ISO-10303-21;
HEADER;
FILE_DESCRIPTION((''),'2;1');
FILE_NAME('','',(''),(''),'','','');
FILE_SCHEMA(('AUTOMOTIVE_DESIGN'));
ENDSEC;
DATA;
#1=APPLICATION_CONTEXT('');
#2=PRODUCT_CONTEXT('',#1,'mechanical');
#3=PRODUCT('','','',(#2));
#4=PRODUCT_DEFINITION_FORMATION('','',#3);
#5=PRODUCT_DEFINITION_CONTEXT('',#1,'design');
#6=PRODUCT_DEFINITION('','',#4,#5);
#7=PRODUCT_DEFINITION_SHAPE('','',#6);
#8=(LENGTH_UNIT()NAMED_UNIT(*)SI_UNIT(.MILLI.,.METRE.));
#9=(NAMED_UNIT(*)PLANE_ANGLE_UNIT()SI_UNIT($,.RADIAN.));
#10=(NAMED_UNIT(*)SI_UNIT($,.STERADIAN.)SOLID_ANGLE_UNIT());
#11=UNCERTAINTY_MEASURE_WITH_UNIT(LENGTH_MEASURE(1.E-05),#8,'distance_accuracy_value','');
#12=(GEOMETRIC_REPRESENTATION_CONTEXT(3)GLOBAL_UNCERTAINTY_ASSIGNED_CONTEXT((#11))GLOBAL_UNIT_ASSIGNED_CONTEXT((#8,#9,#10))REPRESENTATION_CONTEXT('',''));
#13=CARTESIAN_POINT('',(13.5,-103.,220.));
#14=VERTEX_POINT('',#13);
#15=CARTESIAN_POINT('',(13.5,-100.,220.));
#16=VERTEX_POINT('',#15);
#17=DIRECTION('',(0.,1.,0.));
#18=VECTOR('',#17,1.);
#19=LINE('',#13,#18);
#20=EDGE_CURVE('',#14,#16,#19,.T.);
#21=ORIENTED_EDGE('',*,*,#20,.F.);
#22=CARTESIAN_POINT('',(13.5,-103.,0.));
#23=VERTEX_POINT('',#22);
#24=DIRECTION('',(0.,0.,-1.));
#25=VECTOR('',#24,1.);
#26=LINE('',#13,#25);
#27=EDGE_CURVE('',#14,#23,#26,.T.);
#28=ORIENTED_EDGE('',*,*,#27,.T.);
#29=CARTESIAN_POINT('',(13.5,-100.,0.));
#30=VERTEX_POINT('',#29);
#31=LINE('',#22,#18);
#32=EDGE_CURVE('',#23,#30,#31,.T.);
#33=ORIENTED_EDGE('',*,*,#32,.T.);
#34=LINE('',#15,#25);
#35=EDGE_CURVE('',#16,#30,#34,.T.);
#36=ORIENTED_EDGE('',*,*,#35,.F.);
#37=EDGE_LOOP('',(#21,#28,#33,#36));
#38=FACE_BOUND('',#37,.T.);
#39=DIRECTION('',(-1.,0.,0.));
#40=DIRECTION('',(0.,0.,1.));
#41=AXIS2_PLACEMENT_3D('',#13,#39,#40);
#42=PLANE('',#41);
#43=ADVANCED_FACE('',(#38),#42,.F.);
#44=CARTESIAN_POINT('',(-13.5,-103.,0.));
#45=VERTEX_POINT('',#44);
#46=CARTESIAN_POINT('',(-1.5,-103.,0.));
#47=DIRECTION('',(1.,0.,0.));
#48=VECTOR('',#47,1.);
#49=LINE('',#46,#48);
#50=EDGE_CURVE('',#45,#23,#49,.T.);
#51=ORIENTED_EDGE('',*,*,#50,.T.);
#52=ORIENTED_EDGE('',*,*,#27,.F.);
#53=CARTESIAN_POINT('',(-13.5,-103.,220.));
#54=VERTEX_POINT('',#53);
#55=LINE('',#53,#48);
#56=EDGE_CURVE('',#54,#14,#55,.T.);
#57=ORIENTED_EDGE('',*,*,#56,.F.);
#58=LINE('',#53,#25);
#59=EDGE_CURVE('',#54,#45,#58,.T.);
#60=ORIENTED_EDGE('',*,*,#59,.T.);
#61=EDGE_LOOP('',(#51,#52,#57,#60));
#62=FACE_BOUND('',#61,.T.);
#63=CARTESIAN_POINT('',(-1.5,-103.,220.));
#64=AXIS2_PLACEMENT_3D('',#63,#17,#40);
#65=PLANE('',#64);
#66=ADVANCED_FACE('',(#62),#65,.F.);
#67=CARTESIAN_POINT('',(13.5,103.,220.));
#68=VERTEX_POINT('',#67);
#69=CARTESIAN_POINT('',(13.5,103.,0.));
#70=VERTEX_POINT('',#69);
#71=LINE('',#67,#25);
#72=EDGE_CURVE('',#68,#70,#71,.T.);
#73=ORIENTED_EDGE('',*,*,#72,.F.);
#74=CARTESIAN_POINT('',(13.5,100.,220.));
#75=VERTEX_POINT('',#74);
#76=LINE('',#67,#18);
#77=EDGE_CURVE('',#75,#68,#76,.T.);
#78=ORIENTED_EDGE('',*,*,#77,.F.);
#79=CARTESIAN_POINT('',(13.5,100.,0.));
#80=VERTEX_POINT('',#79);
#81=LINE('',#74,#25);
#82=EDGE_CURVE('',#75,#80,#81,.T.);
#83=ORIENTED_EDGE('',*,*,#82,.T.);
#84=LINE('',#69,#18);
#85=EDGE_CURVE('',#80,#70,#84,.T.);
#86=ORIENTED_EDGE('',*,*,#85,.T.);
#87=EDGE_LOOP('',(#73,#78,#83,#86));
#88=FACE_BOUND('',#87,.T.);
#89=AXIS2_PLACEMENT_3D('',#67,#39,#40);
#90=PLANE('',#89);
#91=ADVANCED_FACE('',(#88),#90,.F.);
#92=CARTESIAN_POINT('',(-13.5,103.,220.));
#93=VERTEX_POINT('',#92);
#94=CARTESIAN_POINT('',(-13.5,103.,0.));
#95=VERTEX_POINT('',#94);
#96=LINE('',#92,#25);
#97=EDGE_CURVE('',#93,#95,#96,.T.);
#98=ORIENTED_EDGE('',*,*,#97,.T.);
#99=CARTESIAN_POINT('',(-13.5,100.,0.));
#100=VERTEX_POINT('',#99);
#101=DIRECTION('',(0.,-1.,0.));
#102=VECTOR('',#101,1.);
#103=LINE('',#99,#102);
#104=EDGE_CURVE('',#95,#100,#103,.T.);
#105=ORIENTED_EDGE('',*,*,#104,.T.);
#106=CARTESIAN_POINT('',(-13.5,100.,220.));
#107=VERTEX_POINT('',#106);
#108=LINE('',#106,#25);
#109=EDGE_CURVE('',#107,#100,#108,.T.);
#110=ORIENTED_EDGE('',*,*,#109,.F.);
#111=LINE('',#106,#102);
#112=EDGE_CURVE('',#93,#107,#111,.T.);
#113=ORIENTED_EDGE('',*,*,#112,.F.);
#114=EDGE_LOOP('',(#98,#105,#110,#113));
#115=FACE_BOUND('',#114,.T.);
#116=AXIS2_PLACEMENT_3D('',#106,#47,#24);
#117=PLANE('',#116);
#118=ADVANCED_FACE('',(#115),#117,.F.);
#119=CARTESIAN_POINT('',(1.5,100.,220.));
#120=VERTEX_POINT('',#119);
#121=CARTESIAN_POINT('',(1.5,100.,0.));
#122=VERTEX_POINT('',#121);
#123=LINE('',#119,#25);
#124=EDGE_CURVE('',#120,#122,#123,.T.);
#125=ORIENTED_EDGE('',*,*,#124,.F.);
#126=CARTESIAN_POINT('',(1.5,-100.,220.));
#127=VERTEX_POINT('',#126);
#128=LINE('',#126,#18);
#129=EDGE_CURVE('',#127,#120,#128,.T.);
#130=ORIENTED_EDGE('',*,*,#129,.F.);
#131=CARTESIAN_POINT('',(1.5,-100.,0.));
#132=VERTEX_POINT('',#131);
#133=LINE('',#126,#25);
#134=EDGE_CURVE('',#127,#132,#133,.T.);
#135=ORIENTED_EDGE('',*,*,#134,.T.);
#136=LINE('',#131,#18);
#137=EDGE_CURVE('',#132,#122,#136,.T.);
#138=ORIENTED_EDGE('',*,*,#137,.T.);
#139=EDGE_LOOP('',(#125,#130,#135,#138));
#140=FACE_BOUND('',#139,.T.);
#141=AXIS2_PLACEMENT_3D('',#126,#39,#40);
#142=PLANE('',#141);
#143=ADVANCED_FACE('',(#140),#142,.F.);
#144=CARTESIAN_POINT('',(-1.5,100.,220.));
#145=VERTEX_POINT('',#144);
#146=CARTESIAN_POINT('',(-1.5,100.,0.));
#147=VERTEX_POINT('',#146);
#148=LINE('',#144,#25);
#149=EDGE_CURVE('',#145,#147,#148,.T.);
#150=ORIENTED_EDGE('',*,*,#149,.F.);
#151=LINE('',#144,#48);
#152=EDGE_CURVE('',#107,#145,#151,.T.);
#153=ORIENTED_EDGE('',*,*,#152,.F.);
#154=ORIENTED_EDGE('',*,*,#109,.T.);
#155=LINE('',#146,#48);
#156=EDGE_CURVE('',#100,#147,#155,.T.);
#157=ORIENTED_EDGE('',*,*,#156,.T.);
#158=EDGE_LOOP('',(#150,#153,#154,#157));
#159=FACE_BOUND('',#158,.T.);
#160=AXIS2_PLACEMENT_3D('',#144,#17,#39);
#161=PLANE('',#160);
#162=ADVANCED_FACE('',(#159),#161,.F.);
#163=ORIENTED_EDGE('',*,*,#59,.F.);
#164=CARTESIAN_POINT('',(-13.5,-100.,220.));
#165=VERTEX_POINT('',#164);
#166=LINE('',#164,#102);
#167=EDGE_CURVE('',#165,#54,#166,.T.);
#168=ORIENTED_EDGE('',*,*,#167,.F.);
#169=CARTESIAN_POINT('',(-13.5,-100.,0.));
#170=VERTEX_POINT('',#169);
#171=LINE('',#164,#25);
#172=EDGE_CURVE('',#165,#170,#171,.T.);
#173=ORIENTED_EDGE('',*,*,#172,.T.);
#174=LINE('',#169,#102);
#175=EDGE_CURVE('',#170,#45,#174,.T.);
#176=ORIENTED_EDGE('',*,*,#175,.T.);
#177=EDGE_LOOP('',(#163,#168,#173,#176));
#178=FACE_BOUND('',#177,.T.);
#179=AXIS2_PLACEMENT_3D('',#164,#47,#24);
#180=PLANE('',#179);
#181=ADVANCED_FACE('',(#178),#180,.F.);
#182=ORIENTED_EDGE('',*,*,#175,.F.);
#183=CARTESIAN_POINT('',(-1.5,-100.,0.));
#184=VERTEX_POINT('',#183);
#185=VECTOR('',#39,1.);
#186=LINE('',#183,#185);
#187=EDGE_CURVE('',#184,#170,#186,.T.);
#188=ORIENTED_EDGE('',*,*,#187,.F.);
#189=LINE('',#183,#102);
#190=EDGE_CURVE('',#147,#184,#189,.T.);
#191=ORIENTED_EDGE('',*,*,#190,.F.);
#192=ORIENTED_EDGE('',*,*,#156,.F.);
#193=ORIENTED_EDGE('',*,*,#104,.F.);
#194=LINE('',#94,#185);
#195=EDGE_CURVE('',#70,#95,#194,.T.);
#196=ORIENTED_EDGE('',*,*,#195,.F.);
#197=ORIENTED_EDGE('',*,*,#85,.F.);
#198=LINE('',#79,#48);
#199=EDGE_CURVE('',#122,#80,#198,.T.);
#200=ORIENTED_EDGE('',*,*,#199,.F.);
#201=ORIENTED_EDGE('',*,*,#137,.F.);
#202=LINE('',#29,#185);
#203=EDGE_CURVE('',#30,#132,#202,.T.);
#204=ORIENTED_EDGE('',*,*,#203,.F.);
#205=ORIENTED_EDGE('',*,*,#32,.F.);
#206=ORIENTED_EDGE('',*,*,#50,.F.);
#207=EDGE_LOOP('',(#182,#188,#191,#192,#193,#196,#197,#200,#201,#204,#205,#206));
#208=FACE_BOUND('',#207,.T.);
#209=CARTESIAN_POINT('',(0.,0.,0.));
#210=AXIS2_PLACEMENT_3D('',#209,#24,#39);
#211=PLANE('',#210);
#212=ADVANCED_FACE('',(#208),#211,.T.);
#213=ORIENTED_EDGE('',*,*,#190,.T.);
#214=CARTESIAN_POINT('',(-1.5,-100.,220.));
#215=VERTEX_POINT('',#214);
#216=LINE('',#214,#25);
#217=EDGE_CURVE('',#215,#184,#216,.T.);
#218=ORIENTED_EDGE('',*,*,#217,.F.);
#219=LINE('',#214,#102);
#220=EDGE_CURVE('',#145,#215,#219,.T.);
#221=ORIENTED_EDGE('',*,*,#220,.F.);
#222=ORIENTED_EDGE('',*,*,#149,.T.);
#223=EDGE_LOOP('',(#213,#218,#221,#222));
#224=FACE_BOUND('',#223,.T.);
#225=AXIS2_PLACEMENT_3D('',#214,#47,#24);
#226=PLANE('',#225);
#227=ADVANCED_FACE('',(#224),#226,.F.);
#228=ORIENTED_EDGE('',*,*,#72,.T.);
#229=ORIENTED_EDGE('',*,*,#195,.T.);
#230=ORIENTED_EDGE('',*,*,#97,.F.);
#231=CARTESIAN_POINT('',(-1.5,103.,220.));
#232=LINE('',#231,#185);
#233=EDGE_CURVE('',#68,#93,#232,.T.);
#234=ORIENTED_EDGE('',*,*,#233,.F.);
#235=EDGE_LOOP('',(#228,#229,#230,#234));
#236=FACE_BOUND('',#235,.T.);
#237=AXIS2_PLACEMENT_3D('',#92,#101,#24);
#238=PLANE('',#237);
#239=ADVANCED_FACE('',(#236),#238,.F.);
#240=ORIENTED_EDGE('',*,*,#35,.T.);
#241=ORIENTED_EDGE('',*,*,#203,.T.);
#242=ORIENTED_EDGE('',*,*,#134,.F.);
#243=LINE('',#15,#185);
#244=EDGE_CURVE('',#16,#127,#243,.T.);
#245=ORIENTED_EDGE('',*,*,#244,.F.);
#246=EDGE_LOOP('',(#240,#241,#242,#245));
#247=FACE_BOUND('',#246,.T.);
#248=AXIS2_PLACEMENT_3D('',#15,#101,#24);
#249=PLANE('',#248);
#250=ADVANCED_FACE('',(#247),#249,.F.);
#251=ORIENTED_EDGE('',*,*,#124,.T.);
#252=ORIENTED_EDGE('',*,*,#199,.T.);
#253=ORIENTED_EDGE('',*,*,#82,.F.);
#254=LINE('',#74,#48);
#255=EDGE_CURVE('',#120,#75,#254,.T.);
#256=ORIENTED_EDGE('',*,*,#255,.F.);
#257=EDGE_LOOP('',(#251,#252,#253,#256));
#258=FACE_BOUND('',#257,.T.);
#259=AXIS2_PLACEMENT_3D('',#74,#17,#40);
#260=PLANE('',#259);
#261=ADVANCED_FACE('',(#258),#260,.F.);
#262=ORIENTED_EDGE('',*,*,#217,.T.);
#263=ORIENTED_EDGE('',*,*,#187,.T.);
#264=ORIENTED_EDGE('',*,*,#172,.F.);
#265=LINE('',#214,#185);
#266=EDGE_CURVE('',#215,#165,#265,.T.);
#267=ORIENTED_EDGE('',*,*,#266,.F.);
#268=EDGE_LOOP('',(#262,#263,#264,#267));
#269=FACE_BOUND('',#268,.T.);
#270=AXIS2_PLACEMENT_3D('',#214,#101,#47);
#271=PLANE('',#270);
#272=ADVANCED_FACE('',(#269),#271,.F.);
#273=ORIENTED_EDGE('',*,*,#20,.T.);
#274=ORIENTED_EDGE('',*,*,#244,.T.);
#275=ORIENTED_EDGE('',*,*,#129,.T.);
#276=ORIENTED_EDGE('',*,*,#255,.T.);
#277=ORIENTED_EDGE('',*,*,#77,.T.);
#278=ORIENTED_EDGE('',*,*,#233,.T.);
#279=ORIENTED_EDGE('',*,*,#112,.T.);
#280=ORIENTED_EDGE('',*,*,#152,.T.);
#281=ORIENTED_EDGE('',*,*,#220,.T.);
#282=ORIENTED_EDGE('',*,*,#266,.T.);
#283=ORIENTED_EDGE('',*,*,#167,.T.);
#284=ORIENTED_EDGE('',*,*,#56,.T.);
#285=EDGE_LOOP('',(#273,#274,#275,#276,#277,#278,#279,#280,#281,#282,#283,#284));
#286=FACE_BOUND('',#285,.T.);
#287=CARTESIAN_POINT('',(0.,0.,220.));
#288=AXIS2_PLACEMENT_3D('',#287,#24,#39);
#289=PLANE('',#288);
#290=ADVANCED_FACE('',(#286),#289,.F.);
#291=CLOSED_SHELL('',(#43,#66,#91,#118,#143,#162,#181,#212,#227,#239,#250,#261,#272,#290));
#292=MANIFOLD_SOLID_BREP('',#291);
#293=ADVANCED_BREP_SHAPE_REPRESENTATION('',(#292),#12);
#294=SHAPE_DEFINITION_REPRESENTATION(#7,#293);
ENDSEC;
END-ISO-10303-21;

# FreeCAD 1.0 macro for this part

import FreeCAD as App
import Part
import Sketcher
from FreeCAD import Vector

doc = App.newDocument("Part")
body = doc.addObject("PartDesign::Body", "Body")

# Sketch on XY plane
sketch1 = body.newObject("Sketcher::SketchObject", "Sketch")
sketch1.AttachmentSupport = (doc.getObject("XY_Plane"), [""])
sketch1.MapMode = "FlatFace"
sketch1.addGeometry([
    Part.LineSegment(Vector(1.5, -100, 0), Vector(1.5, 100, 0)),  # 0
    Part.LineSegment(Vector(1.5, 100, 0), Vector(13.5, 100, 0)),  # 1
    Part.LineSegment(Vector(13.5, 100, 0), Vector(13.5, 103, 0)),  # 2
    Part.LineSegment(Vector(13.5, 103, 0), Vector(-13.5, 103, 0)),  # 3
    Part.LineSegment(Vector(-13.5, 103, 0), Vector(-13.5, 100, 0)),  # 4
    Part.LineSegment(Vector(-13.5, 100, 0), Vector(-1.5, 100, 0)),  # 5
    Part.LineSegment(Vector(-1.5, 100, 0), Vector(-1.5, -100, 0)),  # 6
    Part.LineSegment(Vector(-1.5, -100, 0), Vector(-13.5, -100, 0)),  # 7
    Part.LineSegment(Vector(-13.5, -100, 0), Vector(-13.5, -103, 0)),  # 8
    Part.LineSegment(Vector(-13.5, -103, 0), Vector(13.5, -103, 0)),  # 9
    Part.LineSegment(Vector(13.5, -103, 0), Vector(13.5, -100, 0)),  # 10
    Part.LineSegment(Vector(13.5, -100, 0), Vector(1.5, -100, 0)),  # 11
], False)
sketch1.addConstraint([
    Sketcher.Constraint("Coincident", 0, 2, 1, 1),
    Sketcher.Constraint("Coincident", 1, 2, 2, 1),
    Sketcher.Constraint("Coincident", 2, 2, 3, 1),
    Sketcher.Constraint("Coincident", 3, 2, 4, 1),
    Sketcher.Constraint("Coincident", 4, 2, 5, 1),
    Sketcher.Constraint("Coincident", 5, 2, 6, 1),
    Sketcher.Constraint("Coincident", 6, 2, 7, 1),
    Sketcher.Constraint("Coincident", 7, 2, 8, 1),
    Sketcher.Constraint("Coincident", 8, 2, 9, 1),
    Sketcher.Constraint("Coincident", 9, 2, 10, 1),
    Sketcher.Constraint("Coincident", 10, 2, 11, 1),
    Sketcher.Constraint("Coincident", 11, 2, 0, 1),
    Sketcher.Constraint("Vertical", 0),
    Sketcher.Constraint("Horizontal", 1),
    Sketcher.Constraint("Vertical", 2),
    Sketcher.Constraint("Horizontal", 3),
    Sketcher.Constraint("Vertical", 4),
    Sketcher.Constraint("Horizontal", 5),
    Sketcher.Constraint("Vertical", 6),
    Sketcher.Constraint("Horizontal", 7),
    Sketcher.Constraint("Vertical", 8),
    Sketcher.Constraint("Horizontal", 9),
    Sketcher.Constraint("Vertical", 10),
    Sketcher.Constraint("Horizontal", 11),
    Sketcher.Constraint("Symmetric", 0, 2, 6, 2, -1, 1),
    Sketcher.Constraint("Symmetric", 2, 2, 8, 2, -1, 1),
    Sketcher.Constraint("Symmetric", 4, 2, 10, 2, -1, 1),
    Sketcher.Constraint("Symmetric", 1, 2, 4, 2, -2),
    Sketcher.Constraint("DistanceX", 1, 1, 1, 2, 12.0),
    Sketcher.Constraint("DistanceX", 3, 2, 3, 1, 27.0),
    Sketcher.Constraint("DistanceY", 0, 1, 0, 2, 200.0),
    Sketcher.Constraint("DistanceY", 2, 1, 2, 2, 3.0),
])
pad1 = body.newObject("PartDesign::Pad", "Pad")
pad1.Profile = sketch1
pad1.Length = 220

doc.recompute()
